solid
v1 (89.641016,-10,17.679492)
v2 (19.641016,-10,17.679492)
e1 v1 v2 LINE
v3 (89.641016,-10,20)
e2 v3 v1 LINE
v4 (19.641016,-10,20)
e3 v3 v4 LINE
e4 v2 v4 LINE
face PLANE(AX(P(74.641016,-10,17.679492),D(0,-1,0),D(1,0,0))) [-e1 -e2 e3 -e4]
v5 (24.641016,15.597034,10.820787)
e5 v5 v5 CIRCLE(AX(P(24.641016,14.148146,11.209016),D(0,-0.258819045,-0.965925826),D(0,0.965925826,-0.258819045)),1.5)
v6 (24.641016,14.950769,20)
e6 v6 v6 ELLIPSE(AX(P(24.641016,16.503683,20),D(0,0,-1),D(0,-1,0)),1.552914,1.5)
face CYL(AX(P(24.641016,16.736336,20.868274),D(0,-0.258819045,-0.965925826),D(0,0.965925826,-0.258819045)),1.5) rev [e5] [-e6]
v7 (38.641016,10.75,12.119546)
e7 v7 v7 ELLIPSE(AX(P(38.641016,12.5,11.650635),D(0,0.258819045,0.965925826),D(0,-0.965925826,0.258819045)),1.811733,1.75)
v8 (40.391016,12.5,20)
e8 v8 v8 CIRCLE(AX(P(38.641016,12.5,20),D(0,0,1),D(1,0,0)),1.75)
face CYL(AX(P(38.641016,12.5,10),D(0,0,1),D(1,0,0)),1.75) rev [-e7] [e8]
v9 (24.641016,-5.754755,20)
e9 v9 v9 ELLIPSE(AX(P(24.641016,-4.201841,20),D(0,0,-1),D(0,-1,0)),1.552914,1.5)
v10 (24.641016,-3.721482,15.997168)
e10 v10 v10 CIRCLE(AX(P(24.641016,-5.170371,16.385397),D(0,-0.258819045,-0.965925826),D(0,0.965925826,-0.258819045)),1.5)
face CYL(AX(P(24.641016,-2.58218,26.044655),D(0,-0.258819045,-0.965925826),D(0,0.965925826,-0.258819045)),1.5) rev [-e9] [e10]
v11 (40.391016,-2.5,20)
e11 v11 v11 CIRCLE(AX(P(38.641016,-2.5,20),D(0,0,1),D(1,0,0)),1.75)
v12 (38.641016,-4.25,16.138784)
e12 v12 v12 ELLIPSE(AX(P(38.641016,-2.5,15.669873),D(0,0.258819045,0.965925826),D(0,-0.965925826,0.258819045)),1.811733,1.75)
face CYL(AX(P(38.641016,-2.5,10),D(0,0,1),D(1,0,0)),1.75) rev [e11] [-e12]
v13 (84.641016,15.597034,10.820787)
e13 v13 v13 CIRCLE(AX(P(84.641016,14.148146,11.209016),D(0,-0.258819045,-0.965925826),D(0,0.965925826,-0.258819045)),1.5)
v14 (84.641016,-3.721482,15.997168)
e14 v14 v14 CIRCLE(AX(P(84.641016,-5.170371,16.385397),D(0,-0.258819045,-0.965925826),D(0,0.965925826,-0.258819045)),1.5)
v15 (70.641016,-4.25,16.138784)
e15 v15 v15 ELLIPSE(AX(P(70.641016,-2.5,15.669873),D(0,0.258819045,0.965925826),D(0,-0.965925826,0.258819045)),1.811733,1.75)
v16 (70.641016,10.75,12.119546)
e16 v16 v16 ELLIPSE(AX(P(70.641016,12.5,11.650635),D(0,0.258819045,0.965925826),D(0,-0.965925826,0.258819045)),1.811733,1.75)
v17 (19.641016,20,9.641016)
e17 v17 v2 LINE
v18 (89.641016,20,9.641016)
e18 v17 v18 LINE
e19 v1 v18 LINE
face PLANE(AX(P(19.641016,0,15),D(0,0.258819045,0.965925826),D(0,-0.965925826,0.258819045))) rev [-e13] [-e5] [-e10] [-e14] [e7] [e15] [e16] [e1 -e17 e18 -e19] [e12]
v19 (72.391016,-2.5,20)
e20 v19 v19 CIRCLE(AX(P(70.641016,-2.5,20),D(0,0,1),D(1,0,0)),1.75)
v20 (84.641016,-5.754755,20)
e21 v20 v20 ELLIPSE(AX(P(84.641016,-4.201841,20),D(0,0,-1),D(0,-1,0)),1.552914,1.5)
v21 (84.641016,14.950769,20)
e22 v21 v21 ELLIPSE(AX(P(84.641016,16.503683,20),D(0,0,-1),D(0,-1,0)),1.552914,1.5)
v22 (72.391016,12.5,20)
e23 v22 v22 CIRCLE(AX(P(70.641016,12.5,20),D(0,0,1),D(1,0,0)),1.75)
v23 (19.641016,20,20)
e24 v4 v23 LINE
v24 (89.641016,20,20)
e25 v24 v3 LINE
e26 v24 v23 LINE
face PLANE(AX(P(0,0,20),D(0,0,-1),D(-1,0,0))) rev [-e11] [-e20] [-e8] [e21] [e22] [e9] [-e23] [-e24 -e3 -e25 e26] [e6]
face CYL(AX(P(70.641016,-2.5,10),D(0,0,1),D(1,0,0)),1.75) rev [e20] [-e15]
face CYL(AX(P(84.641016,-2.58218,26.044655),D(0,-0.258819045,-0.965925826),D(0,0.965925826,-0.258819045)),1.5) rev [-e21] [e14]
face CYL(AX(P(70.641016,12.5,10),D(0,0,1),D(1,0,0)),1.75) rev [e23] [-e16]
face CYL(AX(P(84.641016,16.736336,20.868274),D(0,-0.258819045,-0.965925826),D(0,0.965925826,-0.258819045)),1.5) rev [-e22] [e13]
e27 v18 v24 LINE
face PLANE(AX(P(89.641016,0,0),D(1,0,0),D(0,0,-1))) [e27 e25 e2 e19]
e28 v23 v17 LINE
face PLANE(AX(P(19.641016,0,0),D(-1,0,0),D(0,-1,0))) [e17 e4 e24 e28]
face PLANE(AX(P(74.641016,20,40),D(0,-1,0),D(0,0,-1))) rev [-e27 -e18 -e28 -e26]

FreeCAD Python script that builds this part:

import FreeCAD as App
import Part
import Sketcher

V = App.Vector
Q = App.Units.Quantity


def add_polygon(sketch, points):
    """Adds a closed chain of lines whose ends are joined by coincident constraints."""
    first, n = sketch.GeometryCount, len(points)
    for a, b in zip(points, points[1:] + points[:1]):
        sketch.addGeometry(Part.LineSegment(App.Vector(*a, 0), App.Vector(*b, 0)), False)
    for i in range(n):
        sketch.addConstraint(Sketcher.Constraint("Coincident", first + i, 2, first + (i + 1) % n, 1))

doc = App.newDocument("Part")
body = doc.addObject("PartDesign::Body", "Body")

# Sketch on XY plane
sketch1 = body.newObject("Sketcher::SketchObject", "Sketch")
sketch1.AttachmentSupport = (doc.getObject("XY_Plane"), [""])
sketch1.MapMode = "FlatFace"
add_polygon(sketch1, [(74.641016, 0), (74.641016, 20), (34.641016, 20), (34.641016, 0)])  # lines 0-3
sketch1.addConstraint(Sketcher.Constraint("Vertical", 0))
sketch1.addConstraint(Sketcher.Constraint("Horizontal", 1))
sketch1.addConstraint(Sketcher.Constraint("Vertical", 2))
sketch1.addConstraint(Sketcher.Constraint("Horizontal", 3))
sketch1.addConstraint(Sketcher.Constraint("PointOnObject", 2, 2, -1))
sketch1.addConstraint(Sketcher.Constraint("DistanceX", 1, 2, 1, 1, Q("40 mm")))
sketch1.addConstraint(Sketcher.Constraint("DistanceY", 0, 1, 0, 2, Q("20 mm")))
sketch1.addConstraint(Sketcher.Constraint("DistanceX", -1, 1, 0, 2, Q("74.641016 mm")))
pad1 = body.newObject("PartDesign::Pad", "Pad")
pad1.Profile = sketch1
pad1.Length = 40

# Sketch on YZ plane
sketch2 = body.newObject("Sketcher::SketchObject", "Sketch001")
sketch2.AttachmentSupport = (doc.getObject("YZ_Plane"), [""])
sketch2.MapMode = "FlatFace"
sketch2.AttachmentOffset = App.Placement(V(0, 0, 74.641016), App.Rotation())
add_polygon(sketch2, [(20, 0), (0, 0), (20, -5.358984)])  # lines 0-2
sketch2.addConstraint(Sketcher.Constraint("Horizontal", 0))
sketch2.addConstraint(Sketcher.Constraint("Vertical", 2))
sketch2.addConstraint(Sketcher.Constraint("Coincident", 0, 2, -1, 1))
sketch2.addConstraint(Sketcher.Constraint("DistanceX", 0, 2, 0, 1, Q("20 mm")))
sketch2.addConstraint(Sketcher.Constraint("Angle", 1, Q("-15 deg")))
pad2 = body.newObject("PartDesign::Pad", "Pad001")
pad2.Profile = sketch2
pad2.Length = 40
pad2.Reversed = True

# Sketch on XY plane
sketch3 = body.newObject("Sketcher::SketchObject", "Sketch002")
sketch3.AttachmentSupport = (doc.getObject("XY_Plane"), [""])
sketch3.MapMode = "FlatFace"
sketch3.AttachmentOffset = App.Placement(V(0, 0, 40), App.Rotation())
add_polygon(sketch3, [(44.391016, 20), (44.391016, 0), (64.891016, 0), (64.891016, 20)])  # lines 0-3
sketch3.addConstraint(Sketcher.Constraint("Vertical", 0))
sketch3.addConstraint(Sketcher.Constraint("Horizontal", 1))
sketch3.addConstraint(Sketcher.Constraint("Vertical", 2))
sketch3.addConstraint(Sketcher.Constraint("Horizontal", 3))
sketch3.addConstraint(Sketcher.Constraint("PointOnObject", 0, 2, -1))
sketch3.addConstraint(Sketcher.Constraint("DistanceY", 0, 2, 0, 1, Q("20 mm")))
sketch3.addConstraint(Sketcher.Constraint("DistanceX", 1, 1, 1, 2, Q("20.5 mm")))
sketch3.addConstraint(Sketcher.Constraint("DistanceX", -1, 1, 0, 2, Q("44.391016 mm")))
pocket1 = body.newObject("PartDesign::Pocket", "Pocket")
pocket1.Profile = sketch3
pocket1.Length = 20

# Sketch on XY plane
sketch4 = body.newObject("Sketcher::SketchObject", "Sketch003")
sketch4.AttachmentSupport = (doc.getObject("XY_Plane"), [""])
sketch4.MapMode = "FlatFace"
sketch4.AttachmentOffset = App.Placement(V(0, 0, 40), App.Rotation())
add_polygon(sketch4, [(69.766016, 20), (69.766016, 0), (74.641016, 0), (74.641016, 20)])  # lines 0-3
add_polygon(sketch4, [(34.641016, 20), (34.641016, 0), (39.516016, 0), (39.516016, 20)])  # lines 4-7
sketch4.addConstraint(Sketcher.Constraint("Vertical", 0))
sketch4.addConstraint(Sketcher.Constraint("Horizontal", 1))
sketch4.addConstraint(Sketcher.Constraint("Vertical", 2))
sketch4.addConstraint(Sketcher.Constraint("Horizontal", 3))
sketch4.addConstraint(Sketcher.Constraint("Vertical", 4))
sketch4.addConstraint(Sketcher.Constraint("Horizontal", 5))
sketch4.addConstraint(Sketcher.Constraint("Vertical", 6))
sketch4.addConstraint(Sketcher.Constraint("Horizontal", 7))
sketch4.addConstraint(Sketcher.Constraint("PointOnObject", 0, 2, -1))
sketch4.addConstraint(Sketcher.Constraint("PointOnObject", 4, 2, -1))
sketch4.addConstraint(Sketcher.Constraint("Horizontal", 3, 2, 6, 2))
sketch4.addConstraint(Sketcher.Constraint("Equal", 3, 5))
sketch4.addConstraint(Sketcher.Constraint("DistanceY", 0, 2, 0, 1, Q("20 mm")))
sketch4.addConstraint(Sketcher.Constraint("DistanceX", 4, 2, 1, 2, Q("40 mm")))
sketch4.addConstraint(Sketcher.Constraint("DistanceX", 1, 1, 1, 2, Q("4.875 mm")))
sketch4.addConstraint(Sketcher.Constraint("DistanceX", -1, 1, 0, 2, Q("69.766016 mm")))
pocket2 = body.newObject("PartDesign::Pocket", "Pocket001")
pocket2.Profile = sketch4
pocket2.Length = 20

# Sketch on YZ plane
sketch5 = body.newObject("Sketcher::SketchObject", "Sketch004")
sketch5.AttachmentSupport = (doc.getObject("YZ_Plane"), [""])
sketch5.MapMode = "FlatFace"
sketch5.AttachmentOffset = App.Placement(V(0, 0, 74.641016), App.Rotation())
add_polygon(sketch5, [(0, 0), (20, -5.358984), (20, 9.641016), (0, 15)])  # lines 0-3
sketch5.addConstraint(Sketcher.Constraint("Vertical", 1))
sketch5.addConstraint(Sketcher.Constraint("Vertical", 3))
sketch5.addConstraint(Sketcher.Constraint("Coincident", 3, 2, -1, 1))
sketch5.addConstraint(Sketcher.Constraint("Parallel", 0, 2))
sketch5.addConstraint(Sketcher.Constraint("DistanceY", 1, 1, 1, 2, Q("15 mm")))
sketch5.addConstraint(Sketcher.Constraint("Angle", 0, Q("-15 deg")))
sketch5.addConstraint(Sketcher.Constraint("DistanceX", -1, 1, 0, 2, Q("20 mm")))
pocket3 = body.newObject("PartDesign::Pocket", "Pocket002")
pocket3.Profile = sketch5
pocket3.Length = 55

# Sketch on XY plane
sketch6 = body.newObject("Sketcher::SketchObject", "Sketch005")
sketch6.AttachmentSupport = (doc.getObject("XY_Plane"), [""])
sketch6.MapMode = "FlatFace"
sketch6.AttachmentOffset = App.Placement(V(0, 0, 20), App.Rotation())
add_polygon(sketch6, [(30.165656, 26.056357), (30.165656, -8.161039), (81.822498, -8.161039), (81.822498, 26.056357)])  # lines 0-3
sketch6.addConstraint(Sketcher.Constraint("Vertical", 0))
sketch6.addConstraint(Sketcher.Constraint("Horizontal", 1))
sketch6.addConstraint(Sketcher.Constraint("Vertical", 2))
sketch6.addConstraint(Sketcher.Constraint("Horizontal", 3))
sketch6.addConstraint(Sketcher.Constraint("DistanceX", 1, 1, 1, 2, Q("51.656842 mm")))
sketch6.addConstraint(Sketcher.Constraint("DistanceY", 0, 2, 0, 1, Q("34.217396 mm")))
sketch6.addConstraint(Sketcher.Constraint("DistanceY", 0, 2, -1, 1, Q("8.161039 mm")))
sketch6.addConstraint(Sketcher.Constraint("DistanceX", -1, 1, 0, 2, Q("30.165656 mm")))
pocket4 = body.newObject("PartDesign::Pocket", "Pocket003")
pocket4.Profile = sketch6
pocket4.Length = 34
pocket4.Reversed = True

# Sketch on YZ plane
sketch7 = body.newObject("Sketcher::SketchObject", "Sketch006")
sketch7.AttachmentSupport = (doc.getObject("YZ_Plane"), [""])
sketch7.MapMode = "FlatFace"
sketch7.AttachmentOffset = App.Placement(V(0, 0, 34.641016), App.Rotation())
add_polygon(sketch7, [(-10, 20), (0, 20), (0, 15), (-10, 17.679492)])  # lines 0-3
sketch7.addConstraint(Sketcher.Constraint("Horizontal", 0))
sketch7.addConstraint(Sketcher.Constraint("Vertical", 1))
sketch7.addConstraint(Sketcher.Constraint("Vertical", 3))
sketch7.addConstraint(Sketcher.Constraint("PointOnObject", 0, 2, -2))
sketch7.addConstraint(Sketcher.Constraint("DistanceX", 0, 1, 0, 2, Q("10 mm")))
sketch7.addConstraint(Sketcher.Constraint("DistanceY", 1, 2, 1, 1, Q("5 mm")))
sketch7.addConstraint(Sketcher.Constraint("Angle", 2, Q("165 deg")))
sketch7.addConstraint(Sketcher.Constraint("DistanceY", -1, 1, 0, 2, Q("20 mm")))
pad3 = body.newObject("PartDesign::Pad", "Pad002")
pad3.Profile = sketch7
pad3.Length = 40

# Sketch on XY plane
sketch8 = body.newObject("Sketcher::SketchObject", "Sketch007")
sketch8.AttachmentSupport = (doc.getObject("XY_Plane"), [""])
sketch8.MapMode = "FlatFace"
sketch8.AttachmentOffset = App.Placement(V(0, 0, 20), App.Rotation())
sketch8.addGeometry(Part.Circle(V(38.641016, 12.5, 0), V(0, 0, 1), 1.75), False)
sketch8.addGeometry(Part.Circle(V(70.641016, 12.5, 0), V(0, 0, 1), 1.75), False)
sketch8.addGeometry(Part.Circle(V(70.641016, -2.5, 0), V(0, 0, 1), 1.75), False)
sketch8.addGeometry(Part.Circle(V(38.641016, -2.5, 0), V(0, 0, 1), 1.75), False)
sketch8.addConstraint(Sketcher.Constraint("Equal", 0, 1))
sketch8.addConstraint(Sketcher.Constraint("Equal", 1, 2))
sketch8.addConstraint(Sketcher.Constraint("Equal", 2, 3))
sketch8.addConstraint(Sketcher.Constraint("Horizontal", 0, 3, 1, 3))
sketch8.addConstraint(Sketcher.Constraint("Horizontal", 2, 3, 3, 3))
sketch8.addConstraint(Sketcher.Constraint("Vertical", 1, 3, 2, 3))
sketch8.addConstraint(Sketcher.Constraint("Vertical", 0, 3, 3, 3))
sketch8.addConstraint(Sketcher.Constraint("Diameter", 0, Q("3.5 mm")))
sketch8.addConstraint(Sketcher.Constraint("DistanceX", 0, 3, 1, 3, Q("32 mm")))
sketch8.addConstraint(Sketcher.Constraint("DistanceY", 2, 3, 1, 3, Q("15 mm")))
sketch8.addConstraint(Sketcher.Constraint("DistanceY", -1, 1, 0, 3, Q("12.5 mm")))
sketch8.addConstraint(Sketcher.Constraint("DistanceX", -1, 1, 0, 3, Q("38.641016 mm")))
pocket5 = body.newObject("PartDesign::Pocket", "Pocket004")
pocket5.Profile = sketch8
pocket5.Length = 10

# Sketch on YZ plane
sketch9 = body.newObject("Sketcher::SketchObject", "Sketch008")
sketch9.AttachmentSupport = (doc.getObject("YZ_Plane"), [""])
sketch9.MapMode = "FlatFace"
sketch9.AttachmentOffset = App.Placement(V(0, 0, 74.641016), App.Rotation())
add_polygon(sketch9, [(20, 20), (-10, 20), (-10, 17.679492), (20, 9.641016)])  # lines 0-3
sketch9.addConstraint(Sketcher.Constraint("Horizontal", 0))
sketch9.addConstraint(Sketcher.Constraint("Vertical", 1))
sketch9.addConstraint(Sketcher.Constraint("Vertical", 3))
sketch9.addConstraint(Sketcher.Constraint("DistanceX", 0, 2, 0, 1, Q("30 mm")))
sketch9.addConstraint(Sketcher.Constraint("Angle", 2, Q("-15 deg")))
sketch9.addConstraint(Sketcher.Constraint("DistanceX", 0, 2, -1, 1, Q("10 mm")))
sketch9.addConstraint(Sketcher.Constraint("DistanceY", -1, 1, 0, 2, Q("20 mm")))
sketch9.addConstraint(Sketcher.Constraint("DistanceY", 1, 2, 1, 1, Q("2.320508 mm")))
pad4 = body.newObject("PartDesign::Pad", "Pad003")
pad4.Profile = sketch9
pad4.Length = 15

# Sketch on YZ plane
sketch10 = body.newObject("Sketcher::SketchObject", "Sketch009")
sketch10.AttachmentSupport = (doc.getObject("YZ_Plane"), [""])
sketch10.MapMode = "FlatFace"
sketch10.AttachmentOffset = App.Placement(V(0, 0, 34.641016), App.Rotation())
add_polygon(sketch10, [(20, 20), (20, 9.641016), (-10, 17.679492), (-10, 20)])  # lines 0-3
sketch10.addConstraint(Sketcher.Constraint("Vertical", 0))
sketch10.addConstraint(Sketcher.Constraint("Vertical", 2))
sketch10.addConstraint(Sketcher.Constraint("Horizontal", 3))
sketch10.addConstraint(Sketcher.Constraint("DistanceX", 3, 1, 3, 2, Q("30 mm")))
sketch10.addConstraint(Sketcher.Constraint("Angle", 1, Q("165 deg")))
sketch10.addConstraint(Sketcher.Constraint("DistanceX", -1, 1, 0, 2, Q("20 mm")))
sketch10.addConstraint(Sketcher.Constraint("DistanceY", -1, 1, 2, 2, Q("20 mm")))
sketch10.addConstraint(Sketcher.Constraint("DistanceY", 2, 1, 2, 2, Q("2.320508 mm")))
pad5 = body.newObject("PartDesign::Pad", "Pad004")
pad5.Profile = sketch10
pad5.Length = 15
pad5.Reversed = True

# Sketch on an angled plane
sketch11 = body.newObject("Sketcher::SketchObject", "Sketch010")
sketch11.Placement = App.Placement(V(0, 3.75, 13.995191), App.Rotation(V(-1, 0, 0), V(0, 0.965925826, -0.258819045), V(0, -0.258819045, -0.965925826), "ZXY"))
sketch11.addGeometry(Part.Circle(V(-84.641016, -9.235047, 0), V(0, 0, 1), 1.5), False)
sketch11.addGeometry(Part.Circle(V(-84.641016, 10.764953, 0), V(0, 0, 1), 1.5), False)
sketch11.addGeometry(Part.Circle(V(-24.641016, -9.235047, 0), V(0, 0, 1), 1.5), False)
sketch11.addGeometry(Part.Circle(V(-24.641016, 10.764953, 0), V(0, 0, 1), 1.5), False)
sketch11.addConstraint(Sketcher.Constraint("Equal", 0, 1))
sketch11.addConstraint(Sketcher.Constraint("Equal", 1, 2))
sketch11.addConstraint(Sketcher.Constraint("Equal", 2, 3))
sketch11.addConstraint(Sketcher.Constraint("Horizontal", 0, 3, 2, 3))
sketch11.addConstraint(Sketcher.Constraint("Horizontal", 1, 3, 3, 3))
sketch11.addConstraint(Sketcher.Constraint("Vertical", 0, 3, 1, 3))
sketch11.addConstraint(Sketcher.Constraint("Vertical", 2, 3, 3, 3))
sketch11.addConstraint(Sketcher.Constraint("Diameter", 0, Q("3 mm")))
sketch11.addConstraint(Sketcher.Constraint("DistanceY", 0, 3, 1, 3, Q("20 mm")))
sketch11.addConstraint(Sketcher.Constraint("DistanceX", 0, 3, 2, 3, Q("60 mm")))
sketch11.addConstraint(Sketcher.Constraint("DistanceX", 0, 3, -1, 1, Q("84.641016 mm")))
sketch11.addConstraint(Sketcher.Constraint("DistanceY", 0, 3, -1, 1, Q("9.235047 mm")))
pocket6 = body.newObject("PartDesign::Pocket", "Pocket005")
pocket6.Profile = sketch11
pocket6.Length = 10

doc.recompute()
